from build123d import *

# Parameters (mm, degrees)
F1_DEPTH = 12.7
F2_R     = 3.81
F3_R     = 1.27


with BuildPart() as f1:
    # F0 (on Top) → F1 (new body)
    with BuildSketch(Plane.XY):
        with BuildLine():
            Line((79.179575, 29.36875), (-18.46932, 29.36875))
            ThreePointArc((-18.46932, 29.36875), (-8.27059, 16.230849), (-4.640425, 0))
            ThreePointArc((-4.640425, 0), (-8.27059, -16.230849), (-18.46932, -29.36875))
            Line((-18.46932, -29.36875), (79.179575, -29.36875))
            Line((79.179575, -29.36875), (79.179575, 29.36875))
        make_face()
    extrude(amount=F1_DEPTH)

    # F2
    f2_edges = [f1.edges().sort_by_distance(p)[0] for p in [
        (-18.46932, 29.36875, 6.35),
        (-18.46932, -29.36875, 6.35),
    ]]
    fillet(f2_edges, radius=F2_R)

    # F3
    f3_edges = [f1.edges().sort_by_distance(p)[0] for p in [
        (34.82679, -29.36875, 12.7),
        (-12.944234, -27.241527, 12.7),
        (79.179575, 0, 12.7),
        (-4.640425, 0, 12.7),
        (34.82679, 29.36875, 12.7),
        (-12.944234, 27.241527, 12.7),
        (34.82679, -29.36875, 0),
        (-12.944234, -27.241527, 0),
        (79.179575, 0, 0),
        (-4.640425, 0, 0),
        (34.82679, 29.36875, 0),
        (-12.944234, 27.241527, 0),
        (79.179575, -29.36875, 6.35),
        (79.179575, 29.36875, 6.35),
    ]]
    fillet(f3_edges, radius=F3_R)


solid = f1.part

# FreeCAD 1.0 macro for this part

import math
import FreeCAD as App
import Part
import Sketcher
Q = App.Units.Quantity


def edges_at(feature, points):
    """Names of the edges that pass closest to the given points."""
    edges = feature.Shape.Edges
    near = lambda p: min(range(len(edges)), key=lambda i: edges[i].distToShape(Part.Vertex(*p))[0])
    return sorted({f"Edge{near(p) + 1}" for p in points})

doc = App.newDocument("Part")
body = doc.addObject("PartDesign::Body", "Body")

# Sketch on XY plane
sketch1 = doc.addObject("Sketcher::SketchObject", "Sketch")
body.addObject(sketch1)
sketch1.AttachmentSupport = (doc.XY_Plane, [""])
sketch1.MapMode = "FlatFace"
sketch1.addGeometry(Part.LineSegment(App.Vector(79, 29, 0), App.Vector(-18, 29, 0)), False)
sketch1.addGeometry(Part.ArcOfCircle(Part.Circle(App.Vector(-43, 0, 0), App.Vector(0, 0, 1), 38), math.radians(0), math.radians(50)), False)
sketch1.addGeometry(Part.ArcOfCircle(Part.Circle(App.Vector(-43, 0, 0), App.Vector(0, 0, 1), 38), math.radians(-50), math.radians(0)), False)
sketch1.addGeometry(Part.LineSegment(App.Vector(-18, -29, 0), App.Vector(79, -29, 0)), False)
sketch1.addGeometry(Part.LineSegment(App.Vector(79, -29, 0), App.Vector(79, 29, 0)), False)
sketch1.addConstraint(Sketcher.Constraint("Coincident", 0, 2, 1, 2))
sketch1.addConstraint(Sketcher.Constraint("Tangent", 1, 1, 2, 2))
sketch1.addConstraint(Sketcher.Constraint("Coincident", 2, 1, 3, 1))
sketch1.addConstraint(Sketcher.Constraint("Coincident", 3, 2, 4, 1))
sketch1.addConstraint(Sketcher.Constraint("Coincident", 4, 2, 0, 1))
sketch1.addConstraint(Sketcher.Constraint("Horizontal", 0))
sketch1.addConstraint(Sketcher.Constraint("Horizontal", 3))
sketch1.addConstraint(Sketcher.Constraint("Vertical", 4))
sketch1.addConstraint(Sketcher.Constraint("Equal", 1, 2))
sketch1.addConstraint(Sketcher.Constraint("Symmetric", 0, 2, 2, 1, -1))
sketch1.addConstraint(Sketcher.Constraint("PointOnObject", 1, 1, -1))
sketch1.addConstraint(Sketcher.Constraint("Radius", 1, Q("1.5000001 in")))
sketch1.addConstraint(Sketcher.Constraint("DistanceX", 1, 1, 3, 2, Q("3.3 in")))
sketch1.addConstraint(Sketcher.Constraint("DistanceY", 4, 1, 4, 2, Q("2.3125 in")))
sketch1.addConstraint(Sketcher.Constraint("DistanceX", 0, 2, -1, 1, 18.46932))
pad1 = doc.addObject("PartDesign::Pad", "Pad")
body.addObject(pad1)
pad1.Profile = sketch1
pad1.Length = Q("0.5 in")
doc.recompute()

fillet = doc.addObject("PartDesign::Fillet", "Fillet")
body.addObject(fillet)
fillet.Base = (pad1, edges_at(pad1, [(-18.469, 29.369, 6.35), (-18.469, -29.369, 6.35)]))
fillet.Radius = Q("0.15 in")
doc.recompute()

fillet2 = doc.addObject("PartDesign::Fillet", "Fillet001")
body.addObject(fillet2)
fillet2.Base = (fillet, edges_at(fillet, [
    (34.827, -29.369, 12.7),
    (-12.944, -27.242, 12.7),
    (79.18, 0, 12.7),
    (-6.671, 12.272, 12.7),
    (34.827, 29.369, 12.7),
    (-12.944, 27.242, 12.7),
    (34.827, -29.369, 0),
    (-12.944, -27.242, 0),
    (79.18, 0, 0),
    (-6.671, 12.272, 0),
    (34.827, 29.369, 0),
    (-12.944, 27.242, 0),
    (79.18, -29.369, 6.35),
    (79.18, 29.369, 6.35),
]))
fillet2.Radius = Q("0.05 in")

doc.recompute()
